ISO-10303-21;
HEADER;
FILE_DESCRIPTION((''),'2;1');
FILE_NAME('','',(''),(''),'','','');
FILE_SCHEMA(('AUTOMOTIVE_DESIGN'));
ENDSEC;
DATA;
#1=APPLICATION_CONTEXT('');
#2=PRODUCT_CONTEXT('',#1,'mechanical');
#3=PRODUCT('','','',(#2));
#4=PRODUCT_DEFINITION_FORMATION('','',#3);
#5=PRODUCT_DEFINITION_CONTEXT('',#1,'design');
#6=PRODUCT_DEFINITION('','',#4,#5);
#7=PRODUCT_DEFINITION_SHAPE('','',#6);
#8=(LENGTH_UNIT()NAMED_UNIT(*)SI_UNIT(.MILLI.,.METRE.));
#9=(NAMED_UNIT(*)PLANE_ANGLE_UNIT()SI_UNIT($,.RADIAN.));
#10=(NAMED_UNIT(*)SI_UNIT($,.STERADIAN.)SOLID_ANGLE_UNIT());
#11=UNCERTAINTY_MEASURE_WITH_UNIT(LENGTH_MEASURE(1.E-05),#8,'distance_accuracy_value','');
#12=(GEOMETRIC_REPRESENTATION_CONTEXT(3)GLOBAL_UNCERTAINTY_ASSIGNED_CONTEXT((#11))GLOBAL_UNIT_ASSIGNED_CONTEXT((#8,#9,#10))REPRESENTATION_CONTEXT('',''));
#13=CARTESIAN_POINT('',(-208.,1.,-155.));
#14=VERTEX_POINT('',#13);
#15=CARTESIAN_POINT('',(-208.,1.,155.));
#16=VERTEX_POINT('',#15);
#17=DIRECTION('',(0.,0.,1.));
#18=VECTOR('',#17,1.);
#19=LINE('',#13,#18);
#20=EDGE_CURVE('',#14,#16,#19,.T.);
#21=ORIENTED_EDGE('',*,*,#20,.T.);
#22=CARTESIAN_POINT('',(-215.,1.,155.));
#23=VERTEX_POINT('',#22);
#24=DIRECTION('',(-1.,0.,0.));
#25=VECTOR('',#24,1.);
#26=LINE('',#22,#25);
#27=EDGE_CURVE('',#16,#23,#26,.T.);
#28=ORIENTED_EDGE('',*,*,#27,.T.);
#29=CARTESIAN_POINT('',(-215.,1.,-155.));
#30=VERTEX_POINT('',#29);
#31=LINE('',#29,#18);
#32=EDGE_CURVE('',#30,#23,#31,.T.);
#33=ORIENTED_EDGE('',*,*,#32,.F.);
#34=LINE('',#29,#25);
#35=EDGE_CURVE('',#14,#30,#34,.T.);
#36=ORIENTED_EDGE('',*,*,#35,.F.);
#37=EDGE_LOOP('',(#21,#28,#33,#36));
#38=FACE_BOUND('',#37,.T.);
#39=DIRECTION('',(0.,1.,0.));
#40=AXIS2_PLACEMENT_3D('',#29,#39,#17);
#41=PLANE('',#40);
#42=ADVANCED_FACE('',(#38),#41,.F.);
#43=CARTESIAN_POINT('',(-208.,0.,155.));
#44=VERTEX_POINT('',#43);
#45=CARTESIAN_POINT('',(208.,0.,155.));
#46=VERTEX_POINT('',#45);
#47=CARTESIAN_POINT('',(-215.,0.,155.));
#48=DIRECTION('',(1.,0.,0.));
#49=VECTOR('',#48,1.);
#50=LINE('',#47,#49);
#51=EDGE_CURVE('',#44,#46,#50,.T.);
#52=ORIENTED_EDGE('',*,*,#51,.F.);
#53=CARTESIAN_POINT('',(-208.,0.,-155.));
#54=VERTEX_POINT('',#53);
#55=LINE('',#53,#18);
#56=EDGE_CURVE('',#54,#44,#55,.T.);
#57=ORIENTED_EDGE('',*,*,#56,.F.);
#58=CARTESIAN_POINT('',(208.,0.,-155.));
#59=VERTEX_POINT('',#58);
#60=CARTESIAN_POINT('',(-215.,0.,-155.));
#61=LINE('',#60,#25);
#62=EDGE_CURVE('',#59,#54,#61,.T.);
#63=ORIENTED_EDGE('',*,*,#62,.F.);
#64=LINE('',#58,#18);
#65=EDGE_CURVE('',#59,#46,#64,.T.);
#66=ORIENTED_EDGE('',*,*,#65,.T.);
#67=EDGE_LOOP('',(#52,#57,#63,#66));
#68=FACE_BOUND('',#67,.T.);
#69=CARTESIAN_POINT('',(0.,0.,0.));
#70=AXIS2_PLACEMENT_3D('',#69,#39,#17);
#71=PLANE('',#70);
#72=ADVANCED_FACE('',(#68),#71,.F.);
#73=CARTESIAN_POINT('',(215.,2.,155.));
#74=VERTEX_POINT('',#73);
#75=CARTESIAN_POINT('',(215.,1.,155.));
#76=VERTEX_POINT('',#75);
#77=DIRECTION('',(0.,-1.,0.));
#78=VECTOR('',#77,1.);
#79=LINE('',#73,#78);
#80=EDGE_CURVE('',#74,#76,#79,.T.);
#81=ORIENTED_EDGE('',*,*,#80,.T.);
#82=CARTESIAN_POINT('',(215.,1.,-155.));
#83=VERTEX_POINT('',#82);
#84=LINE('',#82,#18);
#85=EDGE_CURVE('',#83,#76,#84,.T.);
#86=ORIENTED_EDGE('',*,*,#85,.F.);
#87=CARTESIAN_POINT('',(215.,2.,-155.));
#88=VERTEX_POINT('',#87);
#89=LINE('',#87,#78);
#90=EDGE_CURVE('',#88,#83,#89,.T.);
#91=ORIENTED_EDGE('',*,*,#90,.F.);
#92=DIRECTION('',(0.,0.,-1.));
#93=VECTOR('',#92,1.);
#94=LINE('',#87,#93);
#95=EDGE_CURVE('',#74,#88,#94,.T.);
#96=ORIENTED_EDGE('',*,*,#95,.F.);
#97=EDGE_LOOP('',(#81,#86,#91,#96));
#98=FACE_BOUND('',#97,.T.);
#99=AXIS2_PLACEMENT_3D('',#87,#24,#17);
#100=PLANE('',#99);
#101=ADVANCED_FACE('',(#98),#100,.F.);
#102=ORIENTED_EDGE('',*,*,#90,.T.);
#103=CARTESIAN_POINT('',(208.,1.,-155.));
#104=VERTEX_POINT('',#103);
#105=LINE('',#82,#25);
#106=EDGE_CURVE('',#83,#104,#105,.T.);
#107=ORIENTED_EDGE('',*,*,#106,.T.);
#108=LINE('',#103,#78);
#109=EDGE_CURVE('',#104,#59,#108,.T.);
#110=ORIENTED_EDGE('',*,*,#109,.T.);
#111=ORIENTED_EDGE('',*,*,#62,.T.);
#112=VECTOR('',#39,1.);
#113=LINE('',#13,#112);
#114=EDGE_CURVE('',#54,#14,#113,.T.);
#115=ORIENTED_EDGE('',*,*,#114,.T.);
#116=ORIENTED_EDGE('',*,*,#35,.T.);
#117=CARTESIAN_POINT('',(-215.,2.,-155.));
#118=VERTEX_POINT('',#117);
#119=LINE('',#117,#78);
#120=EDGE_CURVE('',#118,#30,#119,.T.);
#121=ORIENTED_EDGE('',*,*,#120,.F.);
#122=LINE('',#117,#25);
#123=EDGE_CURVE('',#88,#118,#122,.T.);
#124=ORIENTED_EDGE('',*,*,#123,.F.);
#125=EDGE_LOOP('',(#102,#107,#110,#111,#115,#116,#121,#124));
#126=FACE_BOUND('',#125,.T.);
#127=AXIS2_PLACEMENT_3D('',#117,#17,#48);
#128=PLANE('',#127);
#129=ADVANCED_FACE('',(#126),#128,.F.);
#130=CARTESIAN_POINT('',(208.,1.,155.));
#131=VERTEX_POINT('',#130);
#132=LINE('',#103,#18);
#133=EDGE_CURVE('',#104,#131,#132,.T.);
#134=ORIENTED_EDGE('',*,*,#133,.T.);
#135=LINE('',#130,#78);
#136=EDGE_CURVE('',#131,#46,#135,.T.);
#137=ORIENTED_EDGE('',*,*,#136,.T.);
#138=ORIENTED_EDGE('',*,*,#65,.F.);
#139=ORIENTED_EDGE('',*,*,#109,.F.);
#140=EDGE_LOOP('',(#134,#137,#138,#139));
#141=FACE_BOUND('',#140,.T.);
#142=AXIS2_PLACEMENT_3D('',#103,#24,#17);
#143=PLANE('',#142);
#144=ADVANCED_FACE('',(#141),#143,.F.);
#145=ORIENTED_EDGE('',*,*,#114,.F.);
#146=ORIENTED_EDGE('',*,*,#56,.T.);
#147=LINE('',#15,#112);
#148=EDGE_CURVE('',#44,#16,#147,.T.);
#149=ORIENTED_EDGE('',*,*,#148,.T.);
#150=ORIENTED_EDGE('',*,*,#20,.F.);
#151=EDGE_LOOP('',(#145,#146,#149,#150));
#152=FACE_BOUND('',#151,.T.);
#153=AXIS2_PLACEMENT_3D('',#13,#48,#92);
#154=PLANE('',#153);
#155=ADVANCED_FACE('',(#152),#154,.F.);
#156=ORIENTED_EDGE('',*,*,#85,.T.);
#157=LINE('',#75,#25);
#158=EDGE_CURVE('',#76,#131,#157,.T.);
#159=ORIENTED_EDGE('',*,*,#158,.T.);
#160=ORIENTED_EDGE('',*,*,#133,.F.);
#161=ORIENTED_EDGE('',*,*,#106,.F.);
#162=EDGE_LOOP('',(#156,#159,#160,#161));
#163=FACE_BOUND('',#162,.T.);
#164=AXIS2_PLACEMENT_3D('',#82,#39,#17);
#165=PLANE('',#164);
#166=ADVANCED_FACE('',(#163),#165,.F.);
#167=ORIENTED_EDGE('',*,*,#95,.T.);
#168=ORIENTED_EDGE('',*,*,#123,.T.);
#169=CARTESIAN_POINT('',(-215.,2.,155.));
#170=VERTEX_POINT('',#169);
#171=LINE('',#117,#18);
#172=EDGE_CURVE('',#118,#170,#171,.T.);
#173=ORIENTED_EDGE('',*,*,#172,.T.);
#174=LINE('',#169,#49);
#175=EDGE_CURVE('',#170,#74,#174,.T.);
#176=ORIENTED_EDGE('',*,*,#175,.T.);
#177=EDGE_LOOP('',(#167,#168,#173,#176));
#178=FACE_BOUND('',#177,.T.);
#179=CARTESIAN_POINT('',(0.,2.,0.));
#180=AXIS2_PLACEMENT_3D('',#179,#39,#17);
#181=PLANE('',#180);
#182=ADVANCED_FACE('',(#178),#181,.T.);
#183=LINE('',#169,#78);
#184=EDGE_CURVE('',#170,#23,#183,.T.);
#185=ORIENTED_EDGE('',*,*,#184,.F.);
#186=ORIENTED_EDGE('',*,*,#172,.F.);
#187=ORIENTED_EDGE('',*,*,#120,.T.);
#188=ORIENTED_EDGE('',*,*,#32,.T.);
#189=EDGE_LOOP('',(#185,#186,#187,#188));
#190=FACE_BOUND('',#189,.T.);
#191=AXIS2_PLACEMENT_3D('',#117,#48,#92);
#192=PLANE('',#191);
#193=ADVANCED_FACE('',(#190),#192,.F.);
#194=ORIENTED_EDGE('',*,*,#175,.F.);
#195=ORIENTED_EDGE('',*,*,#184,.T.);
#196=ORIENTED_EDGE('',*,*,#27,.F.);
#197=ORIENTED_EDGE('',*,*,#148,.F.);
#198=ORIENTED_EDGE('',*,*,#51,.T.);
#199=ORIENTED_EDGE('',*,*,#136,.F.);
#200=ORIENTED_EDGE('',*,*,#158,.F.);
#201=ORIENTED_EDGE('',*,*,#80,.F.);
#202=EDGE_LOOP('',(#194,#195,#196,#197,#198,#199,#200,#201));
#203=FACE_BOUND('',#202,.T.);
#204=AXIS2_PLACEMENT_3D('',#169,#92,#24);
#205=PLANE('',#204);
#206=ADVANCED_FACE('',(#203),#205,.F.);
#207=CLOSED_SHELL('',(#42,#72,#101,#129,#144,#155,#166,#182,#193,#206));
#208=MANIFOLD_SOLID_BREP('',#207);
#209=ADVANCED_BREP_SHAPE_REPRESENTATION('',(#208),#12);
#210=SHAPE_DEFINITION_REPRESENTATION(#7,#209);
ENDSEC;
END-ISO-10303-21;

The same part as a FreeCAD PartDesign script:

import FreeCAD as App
import Part
import Sketcher
from FreeCAD import Vector
Q = App.Units.Quantity


def add_polygon(sketch, points):
    """Adds a closed chain of lines whose ends are joined by coincident constraints."""
    first, n = sketch.GeometryCount, len(points)
    for a, b in zip(points, points[1:] + points[:1]):
        sketch.addGeometry(Part.LineSegment(App.Vector(*a, 0), App.Vector(*b, 0)), False)
    for i in range(n):
        sketch.addConstraint(Sketcher.Constraint("Coincident", first + i, 2, first + (i + 1) % n, 1))

doc = App.newDocument("Part")
params = doc.addObject("Spreadsheet::Sheet", "Params")
for row, (alias, value) in enumerate([
    ("sketch1_width", "430 mm"),
    ("sketch1_height", "310 mm"),
    ("pad1_length", "2 mm"),
    ("sketch2_width", "7 mm"),
    ("sketch2_height", "1 mm"),
], start=1):
    params.set(f"A{row}", alias)
    params.set(f"B{row}", "=" + value)
    params.setAlias(f"B{row}", alias)

body = doc.addObject("PartDesign::Body", "Body")

sketch1 = doc.addObject("Sketcher::SketchObject", "Sketch")
body.addObject(sketch1)
sketch1.AttachmentSupport = (doc.XZ_Plane, [""])
sketch1.MapMode = "FlatFace"
add_polygon(sketch1, [(-215, -155), (-215, 155), (215, 155), (215, -155)])
sketch1.addConstraint([
    Sketcher.Constraint("Vertical", 0),
    Sketcher.Constraint("Horizontal", 1),
    Sketcher.Constraint("Vertical", 2),
    Sketcher.Constraint("Horizontal", 3),
    Sketcher.Constraint("Symmetric", 0, 2, 2, 2, -1, 1),
    Sketcher.Constraint("DistanceX", 1, 1, 1, 2, Q("430 mm")),
    Sketcher.Constraint("DistanceY", 0, 1, 0, 2, Q("310 mm")),
])
sketch1.setExpression("Constraints[9]", "Params.sketch1_width")
sketch1.setExpression("Constraints[10]", "Params.sketch1_height")
pad1 = doc.addObject("PartDesign::Pad", "Pad")
body.addObject(pad1)
pad1.Profile = sketch1
pad1.setExpression("Length", "Params.pad1_length")
pad1.Reversed = True

sketch2 = doc.addObject("Sketcher::SketchObject", "Sketch001")
body.addObject(sketch2)
sketch2.AttachmentSupport = (doc.XY_Plane, [""])
sketch2.MapMode = "FlatFace"
sketch2.AttachmentOffset = App.Placement(Vector(0, 0, 155), App.Rotation())
add_polygon(sketch2, [(-215, 1), (-215, 0), (-208, 0), (-208, 1)])
add_polygon(sketch2, [(208, 1), (208, 0), (215, 0), (215, 1)])
sketch2.addConstraint([
    Sketcher.Constraint("Vertical", 0),
    Sketcher.Constraint("Horizontal", 1),
    Sketcher.Constraint("Vertical", 2),
    Sketcher.Constraint("Horizontal", 3),
    Sketcher.Constraint("Vertical", 4),
    Sketcher.Constraint("Horizontal", 5),
    Sketcher.Constraint("Vertical", 6),
    Sketcher.Constraint("Horizontal", 7),
    Sketcher.Constraint("Symmetric", 1, 2, 4, 2, -1, 1),
    Sketcher.Constraint("Symmetric", 0, 2, 5, 2, -2),
    Sketcher.Constraint("Horizontal", 3, 2, 6, 2),
    Sketcher.Constraint("DistanceX", 1, 1, 1, 2, Q("7 mm")),
    Sketcher.Constraint("DistanceY", 0, 2, 0, 1, Q("1 mm")),
    Sketcher.Constraint("DistanceX", 0, 2, -1, 1, Q("215 mm")),
])
sketch2.setExpression("Constraints[19]", "Params.sketch2_width")
sketch2.setExpression("Constraints[20]", "Params.sketch2_height")
pocket1 = doc.addObject("PartDesign::Pocket", "Pocket")
body.addObject(pocket1)
pocket1.Profile = sketch2
pocket1.Type = "ThroughAll"

doc.recompute()
